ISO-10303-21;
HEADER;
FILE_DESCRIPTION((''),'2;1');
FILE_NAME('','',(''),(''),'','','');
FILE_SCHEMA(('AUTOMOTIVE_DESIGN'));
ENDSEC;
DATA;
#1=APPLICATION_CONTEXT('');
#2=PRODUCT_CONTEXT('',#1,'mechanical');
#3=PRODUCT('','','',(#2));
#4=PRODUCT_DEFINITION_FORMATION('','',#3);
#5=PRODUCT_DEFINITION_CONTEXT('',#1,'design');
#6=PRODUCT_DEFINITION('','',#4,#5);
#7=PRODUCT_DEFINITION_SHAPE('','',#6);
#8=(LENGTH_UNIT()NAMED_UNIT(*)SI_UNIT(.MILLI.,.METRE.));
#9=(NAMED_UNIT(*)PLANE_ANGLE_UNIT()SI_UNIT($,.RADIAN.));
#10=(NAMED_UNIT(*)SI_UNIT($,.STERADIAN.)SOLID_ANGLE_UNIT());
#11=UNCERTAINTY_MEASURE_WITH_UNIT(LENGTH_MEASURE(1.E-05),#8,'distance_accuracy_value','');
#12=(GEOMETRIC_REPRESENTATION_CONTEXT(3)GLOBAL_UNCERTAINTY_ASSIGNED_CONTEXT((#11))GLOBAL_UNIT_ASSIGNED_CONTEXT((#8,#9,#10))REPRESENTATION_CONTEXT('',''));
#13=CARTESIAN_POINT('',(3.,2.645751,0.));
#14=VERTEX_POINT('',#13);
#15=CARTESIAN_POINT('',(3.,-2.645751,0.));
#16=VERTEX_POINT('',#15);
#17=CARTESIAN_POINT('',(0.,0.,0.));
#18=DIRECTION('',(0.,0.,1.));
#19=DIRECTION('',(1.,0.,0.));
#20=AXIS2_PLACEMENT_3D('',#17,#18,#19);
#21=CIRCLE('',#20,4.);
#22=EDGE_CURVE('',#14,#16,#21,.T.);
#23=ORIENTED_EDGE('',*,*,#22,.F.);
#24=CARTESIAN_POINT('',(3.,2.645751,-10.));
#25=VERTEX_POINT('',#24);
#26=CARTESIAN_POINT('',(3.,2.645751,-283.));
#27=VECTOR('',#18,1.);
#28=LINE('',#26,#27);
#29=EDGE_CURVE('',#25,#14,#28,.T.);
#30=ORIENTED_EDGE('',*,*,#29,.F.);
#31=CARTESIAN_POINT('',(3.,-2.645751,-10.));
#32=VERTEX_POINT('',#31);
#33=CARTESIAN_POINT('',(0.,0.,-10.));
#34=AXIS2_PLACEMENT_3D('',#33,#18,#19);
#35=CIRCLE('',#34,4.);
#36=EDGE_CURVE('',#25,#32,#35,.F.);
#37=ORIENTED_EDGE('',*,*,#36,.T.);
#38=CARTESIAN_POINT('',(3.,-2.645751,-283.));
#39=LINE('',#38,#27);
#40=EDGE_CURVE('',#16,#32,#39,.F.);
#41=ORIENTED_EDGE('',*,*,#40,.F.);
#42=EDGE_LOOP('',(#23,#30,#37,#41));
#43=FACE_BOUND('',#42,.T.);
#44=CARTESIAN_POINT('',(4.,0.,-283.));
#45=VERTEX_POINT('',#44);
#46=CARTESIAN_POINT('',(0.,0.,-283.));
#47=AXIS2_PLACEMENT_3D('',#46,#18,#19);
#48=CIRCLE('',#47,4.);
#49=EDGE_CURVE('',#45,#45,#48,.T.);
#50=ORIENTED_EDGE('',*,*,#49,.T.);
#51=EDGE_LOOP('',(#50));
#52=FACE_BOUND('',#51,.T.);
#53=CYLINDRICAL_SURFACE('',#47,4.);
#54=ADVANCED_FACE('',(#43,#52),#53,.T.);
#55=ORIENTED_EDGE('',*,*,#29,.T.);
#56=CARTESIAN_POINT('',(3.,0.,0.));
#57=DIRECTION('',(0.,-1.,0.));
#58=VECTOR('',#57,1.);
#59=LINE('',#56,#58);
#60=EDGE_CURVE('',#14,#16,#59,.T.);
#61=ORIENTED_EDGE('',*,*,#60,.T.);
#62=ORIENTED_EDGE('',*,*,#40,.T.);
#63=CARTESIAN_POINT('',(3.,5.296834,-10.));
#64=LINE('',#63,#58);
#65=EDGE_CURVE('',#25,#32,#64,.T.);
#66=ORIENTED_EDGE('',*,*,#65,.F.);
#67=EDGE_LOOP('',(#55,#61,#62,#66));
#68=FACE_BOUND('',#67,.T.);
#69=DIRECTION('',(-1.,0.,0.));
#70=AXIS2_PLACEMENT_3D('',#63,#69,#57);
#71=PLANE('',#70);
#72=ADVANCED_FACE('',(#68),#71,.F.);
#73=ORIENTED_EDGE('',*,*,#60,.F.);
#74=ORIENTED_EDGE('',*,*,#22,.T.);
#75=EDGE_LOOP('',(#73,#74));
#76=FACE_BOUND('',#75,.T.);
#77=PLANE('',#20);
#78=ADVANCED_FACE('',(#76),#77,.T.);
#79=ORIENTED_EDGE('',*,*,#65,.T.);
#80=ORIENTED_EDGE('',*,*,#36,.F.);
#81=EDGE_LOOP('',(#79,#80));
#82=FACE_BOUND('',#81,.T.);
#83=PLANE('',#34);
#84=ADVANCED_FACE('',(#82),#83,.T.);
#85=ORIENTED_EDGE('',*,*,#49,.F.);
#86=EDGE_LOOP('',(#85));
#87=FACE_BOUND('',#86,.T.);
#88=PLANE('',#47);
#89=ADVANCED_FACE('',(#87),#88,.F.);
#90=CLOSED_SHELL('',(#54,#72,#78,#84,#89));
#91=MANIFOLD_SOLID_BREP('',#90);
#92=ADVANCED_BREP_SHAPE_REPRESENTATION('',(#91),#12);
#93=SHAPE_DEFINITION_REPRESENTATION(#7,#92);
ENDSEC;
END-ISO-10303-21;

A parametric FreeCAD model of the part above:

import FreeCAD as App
import Part
import Sketcher

V = App.Vector


def add_polygon(sketch, points):
    """Adds a closed chain of lines whose ends are joined by coincident constraints."""
    first, n = sketch.GeometryCount, len(points)
    for a, b in zip(points, points[1:] + points[:1]):
        sketch.addGeometry(Part.LineSegment(App.Vector(*a, 0), App.Vector(*b, 0)), False)
    for i in range(n):
        sketch.addConstraint(Sketcher.Constraint("Coincident", first + i, 2, first + (i + 1) % n, 1))

doc = App.newDocument("Part")
body = doc.addObject("PartDesign::Body", "Body")

# Sketch on XY plane
sketch1 = body.newObject("Sketcher::SketchObject", "Sketch")
sketch1.AttachmentSupport = (doc.getObject("XY_Plane"), [""])
sketch1.MapMode = "FlatFace"
sketch1.addGeometry(Part.Circle(V(0, 0, 0), V(0, 0, 1), 4), False)
sketch1.addConstraint(Sketcher.Constraint("Coincident", 0, 3, -1, 1))
sketch1.addConstraint(Sketcher.Constraint("Diameter", 0, 8.0))
pad1 = body.newObject("PartDesign::Pad", "Pad")
pad1.Profile = sketch1
pad1.Length = 283
pad1.Reversed = True

# Sketch on XY plane
sketch2 = body.newObject("Sketcher::SketchObject", "Sketch001")
sketch2.AttachmentSupport = (doc.getObject("XY_Plane"), [""])
sketch2.MapMode = "FlatFace"
add_polygon(sketch2, [(3, 5), (3, -7), (14, -7), (14, 5)])  # lines 0-3
sketch2.addConstraint(Sketcher.Constraint("Vertical", 0))
sketch2.addConstraint(Sketcher.Constraint("Horizontal", 1))
sketch2.addConstraint(Sketcher.Constraint("Vertical", 2))
sketch2.addConstraint(Sketcher.Constraint("Horizontal", 3))
sketch2.addConstraint(Sketcher.Constraint("DistanceX", -1, 1, 0, 2, 3.0))
sketch2.addConstraint(Sketcher.Constraint("DistanceY", 0, 2, 0, 1, 12.12449))
sketch2.addConstraint(Sketcher.Constraint("DistanceX", 1, 1, 1, 2, 11.473302))
sketch2.addConstraint(Sketcher.Constraint("DistanceY", 0, 2, -1, 1, 6.827656))
pocket1 = body.newObject("PartDesign::Pocket", "Pocket")
pocket1.Profile = sketch2
pocket1.Length = 10

doc.recompute()
